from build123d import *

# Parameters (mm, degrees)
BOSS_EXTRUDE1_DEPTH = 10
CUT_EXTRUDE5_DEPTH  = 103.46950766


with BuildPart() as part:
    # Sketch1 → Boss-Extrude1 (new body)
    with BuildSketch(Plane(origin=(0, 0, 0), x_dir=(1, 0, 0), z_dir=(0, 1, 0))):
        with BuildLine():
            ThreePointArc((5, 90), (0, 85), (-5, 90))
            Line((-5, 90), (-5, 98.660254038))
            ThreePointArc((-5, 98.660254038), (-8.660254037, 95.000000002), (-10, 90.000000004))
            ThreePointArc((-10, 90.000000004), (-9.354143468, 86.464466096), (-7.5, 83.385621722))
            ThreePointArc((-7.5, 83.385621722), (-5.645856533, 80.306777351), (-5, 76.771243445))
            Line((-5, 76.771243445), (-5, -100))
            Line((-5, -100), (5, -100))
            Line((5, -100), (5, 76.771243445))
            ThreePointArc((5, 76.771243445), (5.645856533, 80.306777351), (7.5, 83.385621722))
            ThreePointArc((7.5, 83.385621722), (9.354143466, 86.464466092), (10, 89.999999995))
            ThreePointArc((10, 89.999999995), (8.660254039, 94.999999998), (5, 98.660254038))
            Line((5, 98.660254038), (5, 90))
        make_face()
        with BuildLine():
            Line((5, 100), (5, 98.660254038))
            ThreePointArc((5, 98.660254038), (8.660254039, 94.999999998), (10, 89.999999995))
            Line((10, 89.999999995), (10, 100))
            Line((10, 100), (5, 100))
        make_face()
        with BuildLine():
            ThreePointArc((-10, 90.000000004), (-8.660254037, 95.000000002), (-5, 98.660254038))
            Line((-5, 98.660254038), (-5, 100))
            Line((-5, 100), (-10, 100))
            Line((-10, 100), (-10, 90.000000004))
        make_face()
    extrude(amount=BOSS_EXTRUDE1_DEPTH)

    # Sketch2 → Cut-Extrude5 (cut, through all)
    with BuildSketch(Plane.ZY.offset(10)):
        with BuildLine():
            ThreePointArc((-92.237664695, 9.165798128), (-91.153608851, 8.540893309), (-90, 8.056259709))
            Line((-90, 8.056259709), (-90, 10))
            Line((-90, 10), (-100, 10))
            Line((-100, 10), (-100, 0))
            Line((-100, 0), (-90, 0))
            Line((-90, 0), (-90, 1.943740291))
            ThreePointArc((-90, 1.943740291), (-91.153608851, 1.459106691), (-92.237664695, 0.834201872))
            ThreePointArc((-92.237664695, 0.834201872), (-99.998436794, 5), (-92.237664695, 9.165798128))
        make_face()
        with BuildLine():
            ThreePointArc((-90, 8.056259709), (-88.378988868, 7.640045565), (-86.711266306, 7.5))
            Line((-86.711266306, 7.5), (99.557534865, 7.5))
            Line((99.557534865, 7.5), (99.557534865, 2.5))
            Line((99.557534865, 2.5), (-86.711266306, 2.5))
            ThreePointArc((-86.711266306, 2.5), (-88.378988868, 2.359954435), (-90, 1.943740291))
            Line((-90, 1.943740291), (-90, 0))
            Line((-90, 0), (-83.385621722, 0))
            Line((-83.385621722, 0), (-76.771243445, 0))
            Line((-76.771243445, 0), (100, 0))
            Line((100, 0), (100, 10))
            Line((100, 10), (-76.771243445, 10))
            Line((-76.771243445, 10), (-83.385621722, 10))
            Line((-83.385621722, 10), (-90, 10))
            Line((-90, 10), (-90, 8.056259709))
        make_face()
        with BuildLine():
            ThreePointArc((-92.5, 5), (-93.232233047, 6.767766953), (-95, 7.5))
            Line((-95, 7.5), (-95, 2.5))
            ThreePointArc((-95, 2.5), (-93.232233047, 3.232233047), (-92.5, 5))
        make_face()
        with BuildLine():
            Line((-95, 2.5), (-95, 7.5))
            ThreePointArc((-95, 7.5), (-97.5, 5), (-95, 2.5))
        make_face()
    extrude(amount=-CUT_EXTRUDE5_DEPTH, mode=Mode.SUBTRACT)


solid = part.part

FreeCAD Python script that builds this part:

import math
import FreeCAD as App
import Part
import Sketcher

V = App.Vector

doc = App.newDocument("Part")
body = doc.addObject("PartDesign::Body", "Body")

# Sketch on XZ plane
sketch1 = body.newObject("Sketcher::SketchObject", "Sketch")
sketch1.AttachmentSupport = (doc.getObject("XZ_Plane"), [""])
sketch1.MapMode = "FlatFace"
sketch1.addGeometry(Part.ArcOfCircle(Part.Circle(V(0, -90, 0), V(0, 0, 1), 5), math.radians(0), math.radians(180)), False)
sketch1.addGeometry(Part.LineSegment(V(-5, -90, 0), V(-5, -100, 0)), False)
sketch1.addGeometry(Part.LineSegment(V(-5, -100, 0), V(-10, -100, 0)), False)
sketch1.addGeometry(Part.LineSegment(V(-10, -100, 0), V(-10, -90, 0)), False)
sketch1.addGeometry(Part.ArcOfCircle(Part.Circle(V(0, -90, 0), V(0, 0, 1), 10), math.radians(139), math.radians(180)), False)
sketch1.addGeometry(Part.ArcOfCircle(Part.Circle(V(-15, -77, 0), V(0, 0, 1), 10), math.radians(-41), math.radians(0)), False)
sketch1.addGeometry(Part.LineSegment(V(-5, -77, 0), V(-5, 100, 0)), False)
sketch1.addGeometry(Part.LineSegment(V(-5, 100, 0), V(5, 100, 0)), False)
sketch1.addGeometry(Part.LineSegment(V(5, 100, 0), V(5, -77, 0)), False)
sketch1.addGeometry(Part.ArcOfCircle(Part.Circle(V(15, -77, 0), V(0, 0, 1), 10), math.radians(180), math.radians(221)), False)
sketch1.addGeometry(Part.ArcOfCircle(Part.Circle(V(0, -90, 0), V(0, 0, 1), 10), math.radians(0), math.radians(41)), False)
sketch1.addGeometry(Part.LineSegment(V(10, -90, 0), V(10, -100, 0)), False)
sketch1.addGeometry(Part.LineSegment(V(10, -100, 0), V(5, -100, 0)), False)
sketch1.addGeometry(Part.LineSegment(V(5, -100, 0), V(5, -90, 0)), False)
sketch1.addConstraint(Sketcher.Constraint("Tangent", 0, 2, 1, 1))
sketch1.addConstraint(Sketcher.Constraint("Coincident", 1, 2, 2, 1))
sketch1.addConstraint(Sketcher.Constraint("Coincident", 2, 2, 3, 1))
sketch1.addConstraint(Sketcher.Constraint("Tangent", 3, 2, 4, 2))
sketch1.addConstraint(Sketcher.Constraint("Tangent", 4, 1, 5, 1))
sketch1.addConstraint(Sketcher.Constraint("Tangent", 5, 2, 6, 1))
sketch1.addConstraint(Sketcher.Constraint("Coincident", 6, 2, 7, 1))
sketch1.addConstraint(Sketcher.Constraint("Coincident", 7, 2, 8, 1))
sketch1.addConstraint(Sketcher.Constraint("Tangent", 8, 2, 9, 1))
sketch1.addConstraint(Sketcher.Constraint("Tangent", 9, 2, 10, 2))
sketch1.addConstraint(Sketcher.Constraint("Tangent", 10, 1, 11, 1))
sketch1.addConstraint(Sketcher.Constraint("Coincident", 11, 2, 12, 1))
sketch1.addConstraint(Sketcher.Constraint("Coincident", 12, 2, 13, 1))
sketch1.addConstraint(Sketcher.Constraint("Tangent", 13, 2, 0, 1))
sketch1.addConstraint(Sketcher.Constraint("Vertical", 1))
sketch1.addConstraint(Sketcher.Constraint("Horizontal", 2))
sketch1.addConstraint(Sketcher.Constraint("Vertical", 3))
sketch1.addConstraint(Sketcher.Constraint("Vertical", 6))
sketch1.addConstraint(Sketcher.Constraint("Horizontal", 7))
sketch1.addConstraint(Sketcher.Constraint("Vertical", 8))
sketch1.addConstraint(Sketcher.Constraint("Vertical", 11))
sketch1.addConstraint(Sketcher.Constraint("Horizontal", 12))
sketch1.addConstraint(Sketcher.Constraint("Vertical", 13))
sketch1.addConstraint(Sketcher.Constraint("Coincident", 4, 3, 0, 3))
sketch1.addConstraint(Sketcher.Constraint("Coincident", 10, 3, 0, 3))
sketch1.addConstraint(Sketcher.Constraint("Equal", 4, 5))
sketch1.addConstraint(Sketcher.Constraint("Equal", 5, 9))
sketch1.addConstraint(Sketcher.Constraint("Equal", 9, 10))
sketch1.addConstraint(Sketcher.Constraint("Symmetric", 1, 2, 7, 2, -1, 1))
sketch1.addConstraint(Sketcher.Constraint("Symmetric", 6, 2, 12, 2, -1, 1))
sketch1.addConstraint(Sketcher.Constraint("PointOnObject", 0, 3, -2))
sketch1.addConstraint(Sketcher.Constraint("Equal", 7, 1))
sketch1.addConstraint(Sketcher.Constraint("Radius", 0, 5.0))
sketch1.addConstraint(Sketcher.Constraint("Radius", 4, 10.0))
sketch1.addConstraint(Sketcher.Constraint("DistanceY", 0, 3, -1, 1, 90.0))
pad1 = body.newObject("PartDesign::Pad", "Pad")
pad1.Profile = sketch1
pad1.Length = 10
pad1.Reversed = True

# Sketch on YZ plane
sketch2 = body.newObject("Sketcher::SketchObject", "Sketch001")
sketch2.AttachmentSupport = (doc.getObject("YZ_Plane"), [""])
sketch2.MapMode = "FlatFace"
sketch2.AttachmentOffset = App.Placement(V(0, 0, -10), App.Rotation())
sketch2.addGeometry(Part.LineSegment(V(10, -100, 0), V(0, -100, 0)), False)
sketch2.addGeometry(Part.LineSegment(V(0, -100, 0), V(0, 100, 0)), False)
sketch2.addGeometry(Part.LineSegment(V(0, 100, 0), V(10, 100, 0)), False)
sketch2.addGeometry(Part.LineSegment(V(10, 100, 0), V(10, -100, 0)), False)
sketch2.addGeometry(Part.ArcOfCircle(Part.Circle(V(17.5, -86.7, 0), V(0, 0, 1), 10), math.radians(-160.8), math.radians(-146.45)), False)
sketch2.addGeometry(Part.ArcOfCircle(Part.Circle(V(17.5, -86.7, 0), V(0, 0, 1), 10), math.radians(180), math.radians(199.2)), False)
sketch2.addGeometry(Part.LineSegment(V(7.5, -86.7, 0), V(7.5, 99.6, 0)), False)
sketch2.addGeometry(Part.LineSegment(V(7.5, 99.6, 0), V(2.5, 99.6, 0)), False)
sketch2.addGeometry(Part.LineSegment(V(2.5, 99.6, 0), V(2.5, -86.7, 0)), False)
sketch2.addGeometry(Part.ArcOfCircle(Part.Circle(V(-7.5, -86.7, 0), V(0, 0, 1), 10), math.radians(-19.2), math.radians(0)), False)
sketch2.addGeometry(Part.ArcOfCircle(Part.Circle(V(-7.5, -86.7, 0), V(0, 0, 1), 10), math.radians(-33.55), math.radians(-19.2)), False)
sketch2.addGeometry(Part.ArcOfCircle(Part.Circle(V(5, -95, 0), V(0, 0, 1), 5), math.radians(146), math.radians(394)), False)
sketch2.addGeometry(Part.ArcOfCircle(Part.Circle(V(5, -95, 0), V(0, 0, 1), 2.5), math.radians(0), math.radians(90)), False)
sketch2.addGeometry(Part.ArcOfCircle(Part.Circle(V(5, -95, 0), V(0, 0, 1), 2.5), math.radians(180), math.radians(360)), False)
sketch2.addGeometry(Part.ArcOfCircle(Part.Circle(V(5, -95, 0), V(0, 0, 1), 2.5), math.radians(90), math.radians(180)), False)
sketch2.addConstraint(Sketcher.Constraint("Coincident", 0, 2, 1, 1))
sketch2.addConstraint(Sketcher.Constraint("Coincident", 1, 2, 2, 1))
sketch2.addConstraint(Sketcher.Constraint("Coincident", 2, 2, 3, 1))
sketch2.addConstraint(Sketcher.Constraint("Coincident", 3, 2, 0, 1))
sketch2.addConstraint(Sketcher.Constraint("Tangent", 4, 1, 5, 2))
sketch2.addConstraint(Sketcher.Constraint("Tangent", 5, 1, 6, 1))
sketch2.addConstraint(Sketcher.Constraint("Coincident", 6, 2, 7, 1))
sketch2.addConstraint(Sketcher.Constraint("Coincident", 7, 2, 8, 1))
sketch2.addConstraint(Sketcher.Constraint("Tangent", 8, 2, 9, 2))
sketch2.addConstraint(Sketcher.Constraint("Tangent", 9, 1, 10, 2))
sketch2.addConstraint(Sketcher.Constraint("Tangent", 10, 1, 11, 1))
sketch2.addConstraint(Sketcher.Constraint("Tangent", 11, 2, 4, 2))
sketch2.addConstraint(Sketcher.Constraint("Tangent", 12, 1, 13, 2))
sketch2.addConstraint(Sketcher.Constraint("Tangent", 13, 1, 14, 2))
sketch2.addConstraint(Sketcher.Constraint("Tangent", 14, 1, 12, 2))
sketch2.addConstraint(Sketcher.Constraint("Horizontal", 0))
sketch2.addConstraint(Sketcher.Constraint("Vertical", 1))
sketch2.addConstraint(Sketcher.Constraint("Horizontal", 2))
sketch2.addConstraint(Sketcher.Constraint("Vertical", 3))
sketch2.addConstraint(Sketcher.Constraint("Vertical", 6))
sketch2.addConstraint(Sketcher.Constraint("Horizontal", 7))
sketch2.addConstraint(Sketcher.Constraint("Vertical", 8))
sketch2.addConstraint(Sketcher.Constraint("Coincident", 12, 3, 11, 3))
sketch2.addConstraint(Sketcher.Constraint("Equal", 4, 5))
sketch2.addConstraint(Sketcher.Constraint("Equal", 5, 9))
sketch2.addConstraint(Sketcher.Constraint("Equal", 9, 10))
sketch2.addConstraint(Sketcher.Constraint("Symmetric", 0, 2, 1, 2, -1, 1))
sketch2.addConstraint(Sketcher.Constraint("Horizontal", 5, 3, 9, 3))
sketch2.addConstraint(Sketcher.Constraint("Horizontal", 4, 1, 9, 1))
sketch2.addConstraint(Sketcher.Constraint("Horizontal", 14, 3, 12, 1))
sketch2.addConstraint(Sketcher.Constraint("Horizontal", 12, 1, 13, 1))
sketch2.addConstraint(Sketcher.Constraint("Vertical", 6, 2, 12, 1))
sketch2.addConstraint(Sketcher.Constraint("Vertical", 13, 3, 14, 1))
sketch2.addConstraint(Sketcher.Constraint("Radius", 4, 10.0))
sketch2.addConstraint(Sketcher.Constraint("Radius", 12, 2.5))
sketch2.addConstraint(Sketcher.Constraint("DistanceX", 0, 2, 0, 1, 10.0))
sketch2.addConstraint(Sketcher.Constraint("DistanceY", 1, 1, 1, 2, 200.0))
sketch2.addConstraint(Sketcher.Constraint("DistanceX", -1, 1, 11, 3, 5.0))
sketch2.addConstraint(Sketcher.Constraint("DistanceY", 11, 3, -1, 1, 95.0))
sketch2.addConstraint(Sketcher.Constraint("DistanceY", 4, 1, -1, 1, 90.0))
sketch2.addConstraint(Sketcher.Constraint("DistanceY", 6, 1, 6, 2, 186.268801))
sketch2.addConstraint(Sketcher.Constraint("Radius", 11, 4.998437))
pocket1 = body.newObject("PartDesign::Pocket", "Pocket")
pocket1.Profile = sketch2
pocket1.Type = "ThroughAll"
pocket1.Reversed = True

doc.recompute()
